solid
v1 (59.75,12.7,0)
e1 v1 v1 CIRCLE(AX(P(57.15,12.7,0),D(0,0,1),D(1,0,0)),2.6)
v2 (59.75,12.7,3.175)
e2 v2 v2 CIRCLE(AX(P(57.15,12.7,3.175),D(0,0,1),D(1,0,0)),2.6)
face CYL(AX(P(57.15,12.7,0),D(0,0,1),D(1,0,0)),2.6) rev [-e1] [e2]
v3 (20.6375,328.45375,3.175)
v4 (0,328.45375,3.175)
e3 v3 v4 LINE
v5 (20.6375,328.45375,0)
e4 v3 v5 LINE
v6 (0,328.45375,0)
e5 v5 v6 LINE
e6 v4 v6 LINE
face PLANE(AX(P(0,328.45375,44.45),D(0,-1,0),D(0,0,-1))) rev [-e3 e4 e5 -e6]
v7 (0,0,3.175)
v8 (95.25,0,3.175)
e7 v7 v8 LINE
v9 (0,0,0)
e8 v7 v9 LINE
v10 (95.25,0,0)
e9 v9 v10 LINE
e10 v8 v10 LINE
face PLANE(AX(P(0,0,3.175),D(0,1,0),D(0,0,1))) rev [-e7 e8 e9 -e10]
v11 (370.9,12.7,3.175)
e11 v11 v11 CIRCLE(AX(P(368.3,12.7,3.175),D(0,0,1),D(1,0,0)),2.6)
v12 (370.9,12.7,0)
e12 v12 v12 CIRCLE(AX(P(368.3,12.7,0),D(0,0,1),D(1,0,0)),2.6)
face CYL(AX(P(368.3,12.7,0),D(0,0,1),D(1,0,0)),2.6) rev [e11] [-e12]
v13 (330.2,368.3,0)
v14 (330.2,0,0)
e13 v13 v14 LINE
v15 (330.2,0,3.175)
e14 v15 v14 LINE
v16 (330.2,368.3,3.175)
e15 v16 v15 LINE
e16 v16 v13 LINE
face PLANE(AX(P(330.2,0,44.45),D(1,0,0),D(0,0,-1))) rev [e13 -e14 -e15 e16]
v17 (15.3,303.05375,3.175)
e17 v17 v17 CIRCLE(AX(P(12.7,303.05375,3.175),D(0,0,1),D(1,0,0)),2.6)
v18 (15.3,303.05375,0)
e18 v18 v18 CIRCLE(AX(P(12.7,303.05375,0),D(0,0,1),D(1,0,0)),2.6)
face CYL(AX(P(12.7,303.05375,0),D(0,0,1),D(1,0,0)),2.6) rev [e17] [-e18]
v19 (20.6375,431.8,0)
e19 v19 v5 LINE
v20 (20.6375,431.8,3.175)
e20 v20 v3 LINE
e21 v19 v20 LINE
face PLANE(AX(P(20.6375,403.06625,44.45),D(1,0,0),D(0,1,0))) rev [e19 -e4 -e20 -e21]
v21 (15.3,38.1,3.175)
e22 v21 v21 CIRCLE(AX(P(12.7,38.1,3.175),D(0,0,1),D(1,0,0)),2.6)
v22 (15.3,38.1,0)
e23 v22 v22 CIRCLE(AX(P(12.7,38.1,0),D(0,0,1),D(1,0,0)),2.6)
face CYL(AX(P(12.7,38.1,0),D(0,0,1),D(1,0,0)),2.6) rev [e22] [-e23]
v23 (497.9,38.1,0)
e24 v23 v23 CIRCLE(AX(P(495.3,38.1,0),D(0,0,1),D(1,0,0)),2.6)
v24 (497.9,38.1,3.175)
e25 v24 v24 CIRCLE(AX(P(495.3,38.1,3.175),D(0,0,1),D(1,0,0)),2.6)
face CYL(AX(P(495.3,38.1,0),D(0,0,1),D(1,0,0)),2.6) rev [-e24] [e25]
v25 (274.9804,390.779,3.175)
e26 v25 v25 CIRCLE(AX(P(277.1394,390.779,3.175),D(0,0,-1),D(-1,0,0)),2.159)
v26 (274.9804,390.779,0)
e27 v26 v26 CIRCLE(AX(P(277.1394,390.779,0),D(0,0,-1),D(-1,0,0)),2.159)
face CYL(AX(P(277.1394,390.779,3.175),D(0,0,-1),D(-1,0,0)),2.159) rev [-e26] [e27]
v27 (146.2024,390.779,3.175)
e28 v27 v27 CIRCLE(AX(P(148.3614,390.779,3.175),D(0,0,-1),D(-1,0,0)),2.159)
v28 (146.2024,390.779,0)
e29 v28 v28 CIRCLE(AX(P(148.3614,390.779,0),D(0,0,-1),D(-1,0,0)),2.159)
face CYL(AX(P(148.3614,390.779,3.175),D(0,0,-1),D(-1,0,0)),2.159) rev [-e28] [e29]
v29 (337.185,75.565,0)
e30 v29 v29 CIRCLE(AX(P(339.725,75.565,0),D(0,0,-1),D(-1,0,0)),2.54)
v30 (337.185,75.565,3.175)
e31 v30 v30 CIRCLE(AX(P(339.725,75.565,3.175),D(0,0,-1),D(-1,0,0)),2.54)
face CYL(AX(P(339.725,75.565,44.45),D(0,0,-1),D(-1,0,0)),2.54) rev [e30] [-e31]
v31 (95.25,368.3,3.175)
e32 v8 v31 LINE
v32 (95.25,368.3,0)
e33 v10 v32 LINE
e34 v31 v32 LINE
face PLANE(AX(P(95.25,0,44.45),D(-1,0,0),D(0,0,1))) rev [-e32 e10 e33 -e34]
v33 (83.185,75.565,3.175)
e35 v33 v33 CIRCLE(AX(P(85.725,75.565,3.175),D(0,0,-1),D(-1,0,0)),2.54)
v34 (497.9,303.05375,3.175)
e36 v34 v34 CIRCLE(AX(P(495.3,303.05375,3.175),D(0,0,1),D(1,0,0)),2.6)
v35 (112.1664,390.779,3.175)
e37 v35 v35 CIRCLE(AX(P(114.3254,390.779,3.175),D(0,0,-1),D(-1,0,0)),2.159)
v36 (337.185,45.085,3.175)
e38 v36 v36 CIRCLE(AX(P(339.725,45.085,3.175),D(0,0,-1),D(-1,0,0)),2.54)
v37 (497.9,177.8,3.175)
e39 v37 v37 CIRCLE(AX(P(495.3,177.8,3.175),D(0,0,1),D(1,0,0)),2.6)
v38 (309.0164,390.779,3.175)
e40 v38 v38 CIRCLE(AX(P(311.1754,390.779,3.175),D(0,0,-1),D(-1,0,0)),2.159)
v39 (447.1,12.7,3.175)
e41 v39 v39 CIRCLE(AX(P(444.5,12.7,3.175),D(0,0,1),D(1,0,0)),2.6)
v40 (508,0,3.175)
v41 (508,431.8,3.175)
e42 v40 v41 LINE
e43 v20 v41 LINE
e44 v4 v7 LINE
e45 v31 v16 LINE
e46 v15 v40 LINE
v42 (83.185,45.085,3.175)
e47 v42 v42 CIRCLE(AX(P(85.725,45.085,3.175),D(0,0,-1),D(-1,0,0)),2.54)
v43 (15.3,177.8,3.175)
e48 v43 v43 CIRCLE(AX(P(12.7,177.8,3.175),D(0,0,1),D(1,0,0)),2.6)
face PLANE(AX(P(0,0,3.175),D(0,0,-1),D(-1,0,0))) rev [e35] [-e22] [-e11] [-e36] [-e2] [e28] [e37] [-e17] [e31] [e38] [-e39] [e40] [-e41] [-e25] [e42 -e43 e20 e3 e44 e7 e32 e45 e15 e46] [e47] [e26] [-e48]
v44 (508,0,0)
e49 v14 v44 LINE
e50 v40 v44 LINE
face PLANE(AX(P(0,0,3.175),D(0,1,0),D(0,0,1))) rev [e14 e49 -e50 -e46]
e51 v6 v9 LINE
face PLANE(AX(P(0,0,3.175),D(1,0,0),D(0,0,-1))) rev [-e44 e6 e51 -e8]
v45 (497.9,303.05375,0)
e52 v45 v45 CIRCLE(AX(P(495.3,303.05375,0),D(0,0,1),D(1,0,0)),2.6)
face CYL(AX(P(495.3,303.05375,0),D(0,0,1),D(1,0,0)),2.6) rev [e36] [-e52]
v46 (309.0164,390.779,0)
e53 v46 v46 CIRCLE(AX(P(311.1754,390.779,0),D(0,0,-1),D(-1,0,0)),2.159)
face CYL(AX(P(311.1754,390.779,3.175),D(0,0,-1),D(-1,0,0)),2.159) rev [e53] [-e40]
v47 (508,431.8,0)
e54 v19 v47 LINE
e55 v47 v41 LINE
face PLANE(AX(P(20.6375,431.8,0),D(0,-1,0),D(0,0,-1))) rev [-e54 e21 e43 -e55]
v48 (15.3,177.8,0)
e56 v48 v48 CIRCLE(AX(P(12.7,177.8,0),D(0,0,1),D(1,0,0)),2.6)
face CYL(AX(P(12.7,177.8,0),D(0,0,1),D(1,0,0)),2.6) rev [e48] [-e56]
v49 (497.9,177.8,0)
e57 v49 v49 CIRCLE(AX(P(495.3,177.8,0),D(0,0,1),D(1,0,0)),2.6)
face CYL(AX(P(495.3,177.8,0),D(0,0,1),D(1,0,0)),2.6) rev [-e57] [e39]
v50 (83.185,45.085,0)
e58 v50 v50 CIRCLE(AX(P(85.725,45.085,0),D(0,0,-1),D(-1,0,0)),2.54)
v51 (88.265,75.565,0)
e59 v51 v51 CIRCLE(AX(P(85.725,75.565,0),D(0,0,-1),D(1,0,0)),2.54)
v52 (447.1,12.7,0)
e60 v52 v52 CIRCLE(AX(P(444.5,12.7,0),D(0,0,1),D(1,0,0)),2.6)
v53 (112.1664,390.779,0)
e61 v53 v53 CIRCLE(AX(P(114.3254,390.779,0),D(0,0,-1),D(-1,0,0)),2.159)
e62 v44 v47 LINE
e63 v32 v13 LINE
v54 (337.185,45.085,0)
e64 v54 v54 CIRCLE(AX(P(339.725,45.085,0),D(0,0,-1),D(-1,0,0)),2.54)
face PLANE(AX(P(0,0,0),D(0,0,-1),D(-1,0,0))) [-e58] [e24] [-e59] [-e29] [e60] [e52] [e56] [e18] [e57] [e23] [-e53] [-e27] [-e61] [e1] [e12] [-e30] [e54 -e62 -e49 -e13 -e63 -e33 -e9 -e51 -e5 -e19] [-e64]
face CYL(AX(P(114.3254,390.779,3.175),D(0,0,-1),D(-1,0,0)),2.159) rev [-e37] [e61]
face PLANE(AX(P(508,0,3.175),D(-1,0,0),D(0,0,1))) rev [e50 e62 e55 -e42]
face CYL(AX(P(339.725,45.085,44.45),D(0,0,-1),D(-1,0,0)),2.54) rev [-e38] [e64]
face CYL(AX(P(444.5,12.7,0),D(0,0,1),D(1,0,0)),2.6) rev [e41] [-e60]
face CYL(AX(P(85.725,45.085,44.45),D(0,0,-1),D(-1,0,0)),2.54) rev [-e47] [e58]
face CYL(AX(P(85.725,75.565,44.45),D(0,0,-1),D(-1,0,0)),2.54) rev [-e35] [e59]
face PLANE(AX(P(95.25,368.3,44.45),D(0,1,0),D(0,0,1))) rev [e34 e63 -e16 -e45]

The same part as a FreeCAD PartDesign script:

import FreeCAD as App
import Part
import Sketcher
from FreeCAD import Vector
Q = App.Units.Quantity


def add_polygon(sketch, points):
    """Adds a closed chain of lines whose ends are joined by coincident constraints."""
    first, n = sketch.GeometryCount, len(points)
    for a, b in zip(points, points[1:] + points[:1]):
        sketch.addGeometry(Part.LineSegment(App.Vector(*a, 0), App.Vector(*b, 0)), False)
    for i in range(n):
        sketch.addConstraint(Sketcher.Constraint("Coincident", first + i, 2, first + (i + 1) % n, 1))

doc = App.newDocument("Part")
body = doc.addObject("PartDesign::Body", "Body")

sketch1 = body.newObject("Sketcher::SketchObject", "Sketch")
sketch1.AttachmentSupport = (doc.getObject("XY_Plane"), [""])
sketch1.MapMode = "FlatFace"
add_polygon(sketch1, [(0, 508), (0, 0), (508, 0), (508, 508)])
sketch1.addConstraint([
    Sketcher.Constraint("Vertical", 0),
    Sketcher.Constraint("Horizontal", 1),
    Sketcher.Constraint("Vertical", 2),
    Sketcher.Constraint("Horizontal", 3),
    Sketcher.Constraint("Coincident", 0, 2, -1, 1),
    Sketcher.Constraint("Equal", 3, 0),
    Sketcher.Constraint("DistanceX", 1, 1, 1, 2, Q("20 in")),
])
pad1 = body.newObject("PartDesign::Pad", "Pad")
pad1.Profile = sketch1
pad1.Length = Q("0.125 in")

sketch2 = body.newObject("Sketcher::SketchObject", "Sketch001")
sketch2.AttachmentSupport = (doc.getObject("XY_Plane"), [""])
sketch2.MapMode = "FlatFace"
sketch2.addGeometry(Part.Circle(Vector(339.7, 45.1, 0), Vector(0, 0, 1), 2.5), False)
sketch2.addGeometry(Part.Circle(Vector(85.7, 45.1, 0), Vector(0, 0, 1), 2.5), False)
sketch2.addGeometry(Part.Circle(Vector(339.7, 75.6, 0), Vector(0, 0, 1), 2.5), False)
sketch2.addGeometry(Part.Circle(Vector(85.7, 75.6, 0), Vector(0, 0, 1), 2.5), False)
add_polygon(sketch2, [(330.2, 368.3), (330.2, 0), (95.2, 0), (95.2, 368.3)])
add_polygon(sketch2, [(0, 328.5), (0, 508), (20.6, 508), (20.6, 328.5)])
sketch2.addConstraint([
    Sketcher.Constraint("Vertical", 4),
    Sketcher.Constraint("Horizontal", 5),
    Sketcher.Constraint("Vertical", 6),
    Sketcher.Constraint("Horizontal", 7),
    Sketcher.Constraint("Vertical", 8),
    Sketcher.Constraint("Horizontal", 9),
    Sketcher.Constraint("Vertical", 10),
    Sketcher.Constraint("Horizontal", 11),
    Sketcher.Constraint("Equal", 0, 1),
    Sketcher.Constraint("Equal", 1, 2),
    Sketcher.Constraint("Equal", 2, 3),
    Sketcher.Constraint("PointOnObject", 4, 2, -1),
    Sketcher.Constraint("PointOnObject", 8, 2, -2),
    Sketcher.Constraint("Horizontal", 0, 3, 1, 3),
    Sketcher.Constraint("Horizontal", 2, 3, 3, 3),
    Sketcher.Constraint("Vertical", 0, 3, 2, 3),
    Sketcher.Constraint("Vertical", 1, 3, 3, 3),
    Sketcher.Constraint("Diameter", 0, Q("0.2 in")),
    Sketcher.Constraint("DistanceY", 4, 2, 4, 1, Q("14.5 in")),
    Sketcher.Constraint("DistanceX", -1, 1, 4, 2, Q("13 in")),
    Sketcher.Constraint("DistanceY", -1, 1, 8, 2, Q("20 in")),
    Sketcher.Constraint("DistanceX", 1, 3, 0, 3, Q("10 in")),
    Sketcher.Constraint("DistanceX", 5, 2, 5, 1, Q("9.25 in")),
    Sketcher.Constraint("DistanceY", 0, 3, 2, 3, Q("1.2 in")),
    Sketcher.Constraint("DistanceX", 9, 1, 9, 2, Q("0.8125 in")),
    Sketcher.Constraint("DistanceX", -1, 1, 0, 3, Q("13.375 in")),
    Sketcher.Constraint("DistanceY", -1, 1, 0, 3, Q("1.775 in")),
    Sketcher.Constraint("DistanceY", 1, 3, 10, 2, Q("11.15625 in")),
])
pocket1 = body.newObject("PartDesign::Pocket", "Pocket")
pocket1.Profile = sketch2
pocket1.Length = Q("1.75 in")
pocket1.Reversed = True

sketch3 = body.newObject("Sketcher::SketchObject", "Sketch002")
sketch3.AttachmentSupport = (doc.getObject("XY_Plane"), [""])
sketch3.MapMode = "FlatFace"
sketch3.addGeometry([
    Part.Circle(Vector(311.2, 390.8, 0), Vector(0, 0, 1), 2.2),
    Part.Circle(Vector(277.1, 390.8, 0), Vector(0, 0, 1), 2.2),
    Part.Circle(Vector(148.4, 390.8, 0), Vector(0, 0, 1), 2.2),
    Part.Circle(Vector(114.3, 390.8, 0), Vector(0, 0, 1), 2.2),
], False)
sketch3.addConstraint([
    Sketcher.Constraint("Equal", 0, 1),
    Sketcher.Constraint("Equal", 1, 2),
    Sketcher.Constraint("Equal", 2, 3),
    Sketcher.Constraint("Horizontal", 0, 3, 1, 3),
    Sketcher.Constraint("Horizontal", 1, 3, 2, 3),
    Sketcher.Constraint("Horizontal", 2, 3, 3, 3),
    Sketcher.Constraint("Diameter", 0, Q("0.17 in")),
    Sketcher.Constraint("DistanceX", 1, 3, 0, 3, Q("1.34 in")),
    Sketcher.Constraint("DistanceX", 2, 3, 1, 3, Q("5.07 in")),
    Sketcher.Constraint("DistanceX", 3, 3, 2, 3, Q("1.34 in")),
    Sketcher.Constraint("DistanceX", -1, 1, 0, 3, Q("12.251 in")),
    Sketcher.Constraint("DistanceY", -1, 1, 0, 3, Q("15.385 in")),
])
pocket2 = body.newObject("PartDesign::Pocket", "Pocket001")
pocket2.Profile = sketch3
pocket2.Type = "ThroughAll"
pocket2.Reversed = True

sketch4 = body.newObject("Sketcher::SketchObject", "Sketch003")
sketch4.AttachmentSupport = (doc.getObject("XY_Plane"), [""])
sketch4.MapMode = "FlatFace"
sketch4.AttachmentOffset = App.Placement(Vector(0, 0, 0.125 * 25.4), App.Rotation())
sketch4.addGeometry([
    Part.Circle(Vector(12.7, 303.1, 0), Vector(0, 0, 1), 2.6),
    Part.Circle(Vector(12.7, 177.8, 0), Vector(0, 0, 1), 2.6),
    Part.Circle(Vector(12.7, 38.1, 0), Vector(0, 0, 1), 2.6),
    Part.Circle(Vector(495.3, 38.1, 0), Vector(0, 0, 1), 2.6),
    Part.Circle(Vector(495.3, 177.8, 0), Vector(0, 0, 1), 2.6),
    Part.Circle(Vector(495.3, 303.1, 0), Vector(0, 0, 1), 2.6),
    Part.Circle(Vector(495.3, 469.9, 0), Vector(0, 0, 1), 2.6),
    Part.Circle(Vector(57.1, 12.7, 0), Vector(0, 0, 1), 2.6),
    Part.Circle(Vector(368.3, 12.7, 0), Vector(0, 0, 1), 2.6),
    Part.Circle(Vector(444.5, 12.7, 0), Vector(0, 0, 1), 2.6),
    Part.Circle(Vector(33.3, 495.3, 0), Vector(0, 0, 1), 2.6),
    Part.Circle(Vector(469.9, 495.3, 0), Vector(0, 0, 1), 2.6),
], False)
sketch4.addConstraint([
    Sketcher.Constraint("Equal", 0, 1),
    Sketcher.Constraint("Equal", 1, 2),
    Sketcher.Constraint("Equal", 2, 3),
    Sketcher.Constraint("Equal", 3, 4),
    Sketcher.Constraint("Equal", 4, 5),
    Sketcher.Constraint("Equal", 5, 6),
    Sketcher.Constraint("Equal", 6, 7),
    Sketcher.Constraint("Equal", 7, 8),
    Sketcher.Constraint("Equal", 8, 9),
    Sketcher.Constraint("Equal", 9, 10),
    Sketcher.Constraint("Equal", 10, 11),
    Sketcher.Constraint("Horizontal", 2, 3, 3, 3),
    Sketcher.Constraint("Horizontal", 1, 3, 4, 3),
    Sketcher.Constraint("Horizontal", 0, 3, 5, 3),
    Sketcher.Constraint("Horizontal", 7, 3, 8, 3),
    Sketcher.Constraint("Horizontal", 8, 3, 9, 3),
    Sketcher.Constraint("Horizontal", 10, 3, 11, 3),
    Sketcher.Constraint("Vertical", 0, 3, 1, 3),
    Sketcher.Constraint("Vertical", 1, 3, 2, 3),
    Sketcher.Constraint("Vertical", 3, 3, 4, 3),
    Sketcher.Constraint("Vertical", 4, 3, 5, 3),
    Sketcher.Constraint("Vertical", 5, 3, 6, 3),
    Sketcher.Constraint("DistanceY", -1, 1, 1, 3, Q("7 in")),
    Sketcher.Constraint("DistanceX", 2, 3, 3, 3, Q("19 in")),
    Sketcher.Constraint("DistanceY", 3, 3, 6, 3, Q("17 in")),
    Sketcher.Constraint("DistanceY", 7, 3, 2, 3, Q("1 in")),
    Sketcher.Constraint("DistanceX", 8, 3, 3, 3, Q("5 in")),
    Sketcher.Constraint("DistanceX", 9, 3, 3, 3, Q("2 in")),
    Sketcher.Constraint("DistanceY", 2, 3, 10, 3, Q("18 in")),
    Sketcher.Constraint("DistanceX", 11, 3, 6, 3, Q("1 in")),
    Sketcher.Constraint("DistanceX", -1, 1, 0, 3, Q("0.5 in")),
    Sketcher.Constraint("DistanceY", -1, 1, 2, 3, Q("1.5 in")),
    Sketcher.Constraint("Diameter", 0, Q("5.2 mm")),
    Sketcher.Constraint("DistanceX", -1, 1, 7, 3, Q("2.25 in")),
    Sketcher.Constraint("DistanceX", -1, 1, 10, 3, Q("1.3125 in")),
    Sketcher.Constraint("DistanceY", -1, 1, 0, 3, Q("303.05375 mm")),
])
pocket3 = body.newObject("PartDesign::Pocket", "Pocket002")
pocket3.Profile = sketch4
pocket3.Type = "ThroughAll"

sketch5 = body.newObject("Sketcher::SketchObject", "Sketch004")
sketch5.AttachmentSupport = (doc.getObject("XY_Plane"), [""])
sketch5.MapMode = "FlatFace"
sketch5.AttachmentOffset = App.Placement(Vector(0, 0, 0.125 * 25.4), App.Rotation())
add_polygon(sketch5, [(21, 508), (21, 432), (508, 432), (508, 508)])
sketch5.addConstraint([
    Sketcher.Constraint("Vertical", 0),
    Sketcher.Constraint("Horizontal", 1),
    Sketcher.Constraint("Vertical", 2),
    Sketcher.Constraint("Horizontal", 3),
    Sketcher.Constraint("DistanceY", 0, 2, 0, 1, Q("3 in")),
    Sketcher.Constraint("DistanceY", -1, 1, 0, 2, Q("17 in")),
    Sketcher.Constraint("DistanceX", -1, 1, 1, 2, Q("20 in")),
    Sketcher.Constraint("DistanceX", 1, 1, 1, 2, Q("19.1875 in")),
])
pocket4 = body.newObject("PartDesign::Pocket", "Pocket003")
pocket4.Profile = sketch5
pocket4.Type = "ThroughAll"

doc.recompute()
